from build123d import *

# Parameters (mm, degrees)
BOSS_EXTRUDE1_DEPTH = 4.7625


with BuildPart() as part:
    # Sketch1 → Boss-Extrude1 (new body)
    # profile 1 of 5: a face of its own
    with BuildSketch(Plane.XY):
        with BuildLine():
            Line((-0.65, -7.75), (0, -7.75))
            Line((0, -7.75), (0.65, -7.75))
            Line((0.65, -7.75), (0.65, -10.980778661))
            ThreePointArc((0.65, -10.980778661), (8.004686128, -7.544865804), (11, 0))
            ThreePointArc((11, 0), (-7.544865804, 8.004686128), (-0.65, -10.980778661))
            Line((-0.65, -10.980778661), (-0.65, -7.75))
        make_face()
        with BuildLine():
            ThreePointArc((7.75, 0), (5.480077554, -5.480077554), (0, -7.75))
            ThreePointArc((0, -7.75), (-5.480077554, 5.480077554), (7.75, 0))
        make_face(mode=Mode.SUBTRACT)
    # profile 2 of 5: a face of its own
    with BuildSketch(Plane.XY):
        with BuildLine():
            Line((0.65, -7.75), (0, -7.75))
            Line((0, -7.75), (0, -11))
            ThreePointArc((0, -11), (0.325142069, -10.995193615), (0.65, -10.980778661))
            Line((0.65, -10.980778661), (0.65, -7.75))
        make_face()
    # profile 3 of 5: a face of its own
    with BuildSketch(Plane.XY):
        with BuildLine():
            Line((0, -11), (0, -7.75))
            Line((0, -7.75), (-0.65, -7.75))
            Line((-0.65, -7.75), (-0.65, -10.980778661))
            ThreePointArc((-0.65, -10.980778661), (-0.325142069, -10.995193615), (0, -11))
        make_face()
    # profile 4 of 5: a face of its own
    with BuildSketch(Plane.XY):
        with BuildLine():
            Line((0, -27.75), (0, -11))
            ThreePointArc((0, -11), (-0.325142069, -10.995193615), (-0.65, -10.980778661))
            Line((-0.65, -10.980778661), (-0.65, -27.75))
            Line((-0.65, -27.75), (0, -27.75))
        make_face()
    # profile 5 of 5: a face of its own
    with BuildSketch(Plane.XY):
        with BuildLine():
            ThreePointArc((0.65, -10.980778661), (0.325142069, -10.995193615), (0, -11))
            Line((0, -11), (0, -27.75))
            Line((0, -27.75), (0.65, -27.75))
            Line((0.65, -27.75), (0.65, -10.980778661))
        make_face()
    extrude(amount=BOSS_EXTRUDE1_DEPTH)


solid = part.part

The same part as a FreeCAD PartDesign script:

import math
import FreeCAD as App
import Part
import Sketcher

V = App.Vector
Q = App.Units.Quantity

doc = App.newDocument("Part")
params = doc.addObject("Spreadsheet::Sheet", "Params")
for row, (alias, value) in enumerate([
    ("sketch1_radius", "11 mm"),
    ("sketch1_radius2", "7.75 mm"),
    ("sketch1_width", "1.3 mm"),
    ("pad1_length", "4.7625 mm"),
], start=1):
    params.set(f"A{row}", alias)
    params.set(f"B{row}", "=" + value)
    params.setAlias(f"B{row}", alias)

body = doc.addObject("PartDesign::Body", "Body")

# Sketch on XY plane
sketch1 = body.newObject("Sketcher::SketchObject", "Sketch")
sketch1.AttachmentSupport = (doc.getObject("XY_Plane"), [""])
sketch1.MapMode = "FlatFace"
sketch1.addGeometry([
    Part.ArcOfCircle(Part.Circle(V(0, 0, 0), V(0, 0, 1), 11), math.radians(0), math.radians(267)),  # 0
    Part.LineSegment(V(-0.7, -11, 0), V(-0.7, -27.8, 0)),  # 1
    Part.LineSegment(V(-0.7, -27.8, 0), V(0.7, -27.8, 0)),  # 2
    Part.LineSegment(V(0.7, -27.8, 0), V(0.7, -11, 0)),  # 3
    Part.ArcOfCircle(Part.Circle(V(0, 0, 0), V(0, 0, 1), 11), math.radians(-87), math.radians(0)),  # 4
    Part.ArcOfCircle(Part.Circle(V(0, 0, 0), V(0, 0, 1), 7.8), math.radians(-90), math.radians(0)),  # 5
    Part.ArcOfCircle(Part.Circle(V(0, 0, 0), V(0, 0, 1), 7.8), math.radians(0), math.radians(270)),  # 6
], False)
sketch1.addConstraint([
    Sketcher.Constraint("Coincident", 0, 2, 1, 1),
    Sketcher.Constraint("Coincident", 1, 2, 2, 1),
    Sketcher.Constraint("Coincident", 2, 2, 3, 1),
    Sketcher.Constraint("Coincident", 3, 2, 4, 1),
    Sketcher.Constraint("Tangent", 4, 2, 0, 1),
    Sketcher.Constraint("Tangent", 5, 1, 6, 2),
    Sketcher.Constraint("Coincident", 6, 1, 5, 2),
    Sketcher.Constraint("Vertical", 1),
    Sketcher.Constraint("Horizontal", 2),
    Sketcher.Constraint("Vertical", 3),
    Sketcher.Constraint("Coincident", 0, 3, -1, 1),
    Sketcher.Constraint("Coincident", 5, 3, -1, 1),
    Sketcher.Constraint("Equal", 0, 4),
    Sketcher.Constraint("PointOnObject", 4, 2, -1),
    Sketcher.Constraint("PointOnObject", 5, 1, -2),
    Sketcher.Constraint("PointOnObject", 6, 1, -1),
    Sketcher.Constraint("Horizontal", 0, 2, 3, 2),
    Sketcher.Constraint("Radius", 0, Q("11 mm")),
    Sketcher.Constraint("Radius", 5, Q("7.75 mm")),
    Sketcher.Constraint("DistanceX", 2, 1, 2, 2, Q("1.3 mm")),
    Sketcher.Constraint("DistanceY", 1, 2, -1, 1, Q("27.75 mm")),
])
sketch1.setExpression("Constraints[17]", "Params.sketch1_radius")
sketch1.setExpression("Constraints[18]", "Params.sketch1_radius2")
sketch1.setExpression("Constraints[19]", "Params.sketch1_width")
pad1 = body.newObject("PartDesign::Pad", "Pad")
pad1.Profile = sketch1
pad1.setExpression("Length", "Params.pad1_length")

doc.recompute()
